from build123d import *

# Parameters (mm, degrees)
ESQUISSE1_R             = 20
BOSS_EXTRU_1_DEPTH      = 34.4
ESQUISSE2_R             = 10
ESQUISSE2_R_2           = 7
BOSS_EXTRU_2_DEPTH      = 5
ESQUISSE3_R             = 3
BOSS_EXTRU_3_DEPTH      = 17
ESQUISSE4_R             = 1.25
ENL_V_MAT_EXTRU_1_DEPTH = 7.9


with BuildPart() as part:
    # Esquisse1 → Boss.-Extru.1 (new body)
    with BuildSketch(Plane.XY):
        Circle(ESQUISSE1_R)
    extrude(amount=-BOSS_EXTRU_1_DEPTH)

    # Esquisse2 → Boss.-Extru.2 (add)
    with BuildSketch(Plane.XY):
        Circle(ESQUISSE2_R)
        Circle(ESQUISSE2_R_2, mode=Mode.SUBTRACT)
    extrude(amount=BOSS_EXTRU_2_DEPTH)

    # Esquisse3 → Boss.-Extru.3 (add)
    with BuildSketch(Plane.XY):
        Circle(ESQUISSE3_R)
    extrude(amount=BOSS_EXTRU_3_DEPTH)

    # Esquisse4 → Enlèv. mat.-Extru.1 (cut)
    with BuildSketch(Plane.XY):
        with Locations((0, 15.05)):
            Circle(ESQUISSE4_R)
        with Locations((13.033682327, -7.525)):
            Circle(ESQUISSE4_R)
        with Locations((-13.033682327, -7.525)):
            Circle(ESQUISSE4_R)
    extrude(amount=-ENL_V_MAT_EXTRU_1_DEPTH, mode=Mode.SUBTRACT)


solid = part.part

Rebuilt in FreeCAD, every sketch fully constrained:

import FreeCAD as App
import Part
import Sketcher

V = App.Vector
Q = App.Units.Quantity

doc = App.newDocument("Part")
params = doc.addObject("Spreadsheet::Sheet", "Params")
for row, (alias, value) in enumerate([
    ("sketch1_diameter", "40 mm"),
    ("pad1_length", "34.4 mm"),
    ("sketch2_diameter", "20 mm"),
    ("sketch2_diameter2", "14 mm"),
    ("pad2_length", "5 mm"),
    ("sketch3_diameter", "6 mm"),
    ("pad3_length", "17 mm"),
    ("sketch4_diameter", "2.5 mm"),
    ("pocket1_length", "7.9 mm"),
], start=1):
    params.set(f"A{row}", alias)
    params.set(f"B{row}", "=" + value)
    params.setAlias(f"B{row}", alias)

body = doc.addObject("PartDesign::Body", "Body")

# Sketch on XY plane
sketch1 = body.newObject("Sketcher::SketchObject", "Sketch")
sketch1.AttachmentSupport = (doc.getObject("XY_Plane"), [""])
sketch1.MapMode = "FlatFace"
sketch1.addGeometry(Part.Circle(V(0, 0, 0), V(0, 0, 1), 20), False)
sketch1.addConstraint([
    Sketcher.Constraint("Coincident", 0, 3, -1, 1),
    Sketcher.Constraint("Diameter", 0, Q("40 mm")),
])
sketch1.setExpression("Constraints[1]", "Params.sketch1_diameter")
pad1 = body.newObject("PartDesign::Pad", "Pad")
pad1.Profile = sketch1
pad1.setExpression("Length", "Params.pad1_length")
pad1.Reversed = True

# Sketch on XY plane
sketch2 = body.newObject("Sketcher::SketchObject", "Sketch001")
sketch2.AttachmentSupport = (doc.getObject("XY_Plane"), [""])
sketch2.MapMode = "FlatFace"
sketch2.addGeometry([
    Part.Circle(V(0, 0, 0), V(0, 0, 1), 10),
    Part.Circle(V(0, 0, 0), V(0, 0, 1), 7),
], False)
sketch2.addConstraint([
    Sketcher.Constraint("Coincident", 0, 3, -1, 1),
    Sketcher.Constraint("Coincident", 1, 3, -1, 1),
    Sketcher.Constraint("Diameter", 0, Q("20 mm")),
    Sketcher.Constraint("Diameter", 1, Q("14 mm")),
])
sketch2.setExpression("Constraints[2]", "Params.sketch2_diameter")
sketch2.setExpression("Constraints[3]", "Params.sketch2_diameter2")
pad2 = body.newObject("PartDesign::Pad", "Pad001")
pad2.Profile = sketch2
pad2.setExpression("Length", "Params.pad2_length")

# Sketch on XY plane
sketch3 = body.newObject("Sketcher::SketchObject", "Sketch002")
sketch3.AttachmentSupport = (doc.getObject("XY_Plane"), [""])
sketch3.MapMode = "FlatFace"
sketch3.addGeometry(Part.Circle(V(0, 0, 0), V(0, 0, 1), 3), False)
sketch3.addConstraint([
    Sketcher.Constraint("Coincident", 0, 3, -1, 1),
    Sketcher.Constraint("Diameter", 0, Q("6 mm")),
])
sketch3.setExpression("Constraints[1]", "Params.sketch3_diameter")
pad3 = body.newObject("PartDesign::Pad", "Pad002")
pad3.Profile = sketch3
pad3.setExpression("Length", "Params.pad3_length")

# Sketch on XY plane
sketch4 = body.newObject("Sketcher::SketchObject", "Sketch003")
sketch4.AttachmentSupport = (doc.getObject("XY_Plane"), [""])
sketch4.MapMode = "FlatFace"
sketch4.addGeometry([
    Part.Circle(V(0, 15.05, 0), V(0, 0, 1), 1.25),
    Part.Circle(V(13.033682, -7.525, 0), V(0, 0, 1), 1.25),
    Part.Circle(V(-13.033682, -7.525, 0), V(0, 0, 1), 1.25),
], False)
sketch4.addConstraint([
    Sketcher.Constraint("Equal", 0, 1),
    Sketcher.Constraint("Equal", 1, 2),
    Sketcher.Constraint("Symmetric", 1, 3, 2, 3, -2),
    Sketcher.Constraint("PointOnObject", 0, 3, -2),
    Sketcher.Constraint("Diameter", 0, Q("2.5 mm")),
    Sketcher.Constraint("DistanceY", -1, 1, 0, 3, Q("15.05 mm")),
    Sketcher.Constraint("DistanceY", 1, 3, -1, 1, Q("7.525 mm")),
    Sketcher.Constraint("DistanceX", -1, 1, 1, 3, Q("13.033682 mm")),
])
sketch4.setExpression("Constraints[4]", "Params.sketch4_diameter")
pocket1 = body.newObject("PartDesign::Pocket", "Pocket")
pocket1.Profile = sketch4
pocket1.setExpression("Length", "Params.pocket1_length")

doc.recompute()
